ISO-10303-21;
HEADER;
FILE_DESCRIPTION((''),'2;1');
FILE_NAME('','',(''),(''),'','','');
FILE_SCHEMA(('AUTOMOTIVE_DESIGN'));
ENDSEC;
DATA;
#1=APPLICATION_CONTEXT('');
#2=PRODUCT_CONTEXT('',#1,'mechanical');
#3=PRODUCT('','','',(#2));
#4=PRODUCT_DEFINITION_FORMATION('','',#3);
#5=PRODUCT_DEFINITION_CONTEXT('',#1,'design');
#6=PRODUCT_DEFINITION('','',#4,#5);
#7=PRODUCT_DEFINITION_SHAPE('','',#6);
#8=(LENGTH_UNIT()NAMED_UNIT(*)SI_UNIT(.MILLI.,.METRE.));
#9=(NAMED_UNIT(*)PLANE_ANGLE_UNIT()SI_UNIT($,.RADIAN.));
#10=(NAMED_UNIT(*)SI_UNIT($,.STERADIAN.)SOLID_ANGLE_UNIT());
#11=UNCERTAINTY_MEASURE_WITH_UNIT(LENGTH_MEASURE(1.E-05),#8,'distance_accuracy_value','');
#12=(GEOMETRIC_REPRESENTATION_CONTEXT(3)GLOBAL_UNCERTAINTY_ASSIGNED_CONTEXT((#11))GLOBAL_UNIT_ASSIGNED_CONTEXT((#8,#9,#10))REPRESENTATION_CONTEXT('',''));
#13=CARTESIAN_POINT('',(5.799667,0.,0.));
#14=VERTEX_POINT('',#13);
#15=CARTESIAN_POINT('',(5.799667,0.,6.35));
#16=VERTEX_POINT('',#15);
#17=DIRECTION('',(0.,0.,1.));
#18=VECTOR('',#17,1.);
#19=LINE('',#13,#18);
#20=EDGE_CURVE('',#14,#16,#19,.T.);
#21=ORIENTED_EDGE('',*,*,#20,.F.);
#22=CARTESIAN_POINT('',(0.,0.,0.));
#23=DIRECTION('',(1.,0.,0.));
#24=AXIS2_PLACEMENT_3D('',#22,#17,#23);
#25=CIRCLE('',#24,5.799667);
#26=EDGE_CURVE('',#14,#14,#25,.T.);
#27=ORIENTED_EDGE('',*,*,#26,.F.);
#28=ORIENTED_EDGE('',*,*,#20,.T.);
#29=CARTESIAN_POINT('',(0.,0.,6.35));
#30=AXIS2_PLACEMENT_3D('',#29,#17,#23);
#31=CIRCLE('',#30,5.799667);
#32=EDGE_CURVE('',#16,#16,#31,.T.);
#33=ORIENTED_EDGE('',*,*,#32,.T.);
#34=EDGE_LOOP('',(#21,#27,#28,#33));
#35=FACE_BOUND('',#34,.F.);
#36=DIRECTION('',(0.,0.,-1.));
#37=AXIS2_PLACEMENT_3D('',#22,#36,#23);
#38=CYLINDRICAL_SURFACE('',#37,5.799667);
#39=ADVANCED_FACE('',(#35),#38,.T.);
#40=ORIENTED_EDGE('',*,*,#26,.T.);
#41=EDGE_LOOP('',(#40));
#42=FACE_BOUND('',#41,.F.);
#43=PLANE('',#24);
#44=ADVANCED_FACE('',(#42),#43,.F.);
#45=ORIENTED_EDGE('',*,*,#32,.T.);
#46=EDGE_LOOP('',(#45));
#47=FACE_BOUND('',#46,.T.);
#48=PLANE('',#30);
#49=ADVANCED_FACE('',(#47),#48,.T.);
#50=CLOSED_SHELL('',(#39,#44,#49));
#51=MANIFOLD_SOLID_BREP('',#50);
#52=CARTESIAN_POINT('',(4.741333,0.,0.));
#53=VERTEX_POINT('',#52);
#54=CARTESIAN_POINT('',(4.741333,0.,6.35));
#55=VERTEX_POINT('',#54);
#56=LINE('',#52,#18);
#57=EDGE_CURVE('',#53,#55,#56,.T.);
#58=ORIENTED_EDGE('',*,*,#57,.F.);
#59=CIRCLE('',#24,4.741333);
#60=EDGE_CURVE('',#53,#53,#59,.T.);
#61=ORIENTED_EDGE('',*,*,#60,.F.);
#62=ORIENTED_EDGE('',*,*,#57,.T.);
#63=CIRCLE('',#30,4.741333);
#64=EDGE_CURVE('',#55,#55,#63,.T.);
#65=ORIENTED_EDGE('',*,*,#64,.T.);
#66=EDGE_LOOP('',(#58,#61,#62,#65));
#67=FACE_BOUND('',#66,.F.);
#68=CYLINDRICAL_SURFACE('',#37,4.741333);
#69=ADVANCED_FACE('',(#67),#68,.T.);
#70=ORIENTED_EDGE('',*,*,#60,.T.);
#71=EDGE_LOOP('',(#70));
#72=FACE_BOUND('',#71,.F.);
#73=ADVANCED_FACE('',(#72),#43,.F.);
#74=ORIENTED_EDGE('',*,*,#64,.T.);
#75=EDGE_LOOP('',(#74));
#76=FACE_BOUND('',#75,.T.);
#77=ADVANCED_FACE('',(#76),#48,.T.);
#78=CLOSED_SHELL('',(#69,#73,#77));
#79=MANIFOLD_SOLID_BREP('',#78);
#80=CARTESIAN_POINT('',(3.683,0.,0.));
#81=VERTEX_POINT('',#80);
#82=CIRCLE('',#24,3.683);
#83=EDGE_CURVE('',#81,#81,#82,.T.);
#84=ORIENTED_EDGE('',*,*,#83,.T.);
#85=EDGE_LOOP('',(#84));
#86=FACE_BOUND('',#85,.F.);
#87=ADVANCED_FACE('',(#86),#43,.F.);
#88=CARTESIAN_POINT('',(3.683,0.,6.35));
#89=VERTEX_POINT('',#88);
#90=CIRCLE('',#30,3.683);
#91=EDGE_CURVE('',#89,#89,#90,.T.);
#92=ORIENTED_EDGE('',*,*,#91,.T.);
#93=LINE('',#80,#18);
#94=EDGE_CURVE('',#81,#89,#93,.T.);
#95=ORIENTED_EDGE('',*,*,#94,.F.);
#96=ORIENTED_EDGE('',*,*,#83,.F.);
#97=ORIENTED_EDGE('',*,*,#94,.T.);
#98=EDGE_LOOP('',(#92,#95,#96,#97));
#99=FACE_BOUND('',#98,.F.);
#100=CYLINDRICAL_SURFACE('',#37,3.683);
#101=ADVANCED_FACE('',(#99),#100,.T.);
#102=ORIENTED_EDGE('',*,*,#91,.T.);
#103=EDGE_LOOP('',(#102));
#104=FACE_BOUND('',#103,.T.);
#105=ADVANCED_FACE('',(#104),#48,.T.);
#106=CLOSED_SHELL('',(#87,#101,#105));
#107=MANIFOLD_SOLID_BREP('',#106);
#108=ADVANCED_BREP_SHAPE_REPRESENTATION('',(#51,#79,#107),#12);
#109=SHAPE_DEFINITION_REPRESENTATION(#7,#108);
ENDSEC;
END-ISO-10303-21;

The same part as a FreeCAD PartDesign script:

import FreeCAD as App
import Part
import Sketcher
Q = App.Units.Quantity

doc = App.newDocument("Part")
body = doc.addObject("PartDesign::Body", "Body")

sketch1 = body.newObject("Sketcher::SketchObject", "Sketch")
sketch1.AttachmentSupport = (doc.getObject("XY_Plane"), [""])
sketch1.MapMode = "FlatFace"
sketch1.addGeometry(Part.Circle(App.Vector(0, 0, 0), App.Vector(0, 0, 1), 3.683), False)
sketch1.addConstraint([
    Sketcher.Constraint("Coincident", 0, 3, -1, 1),
    Sketcher.Constraint("Diameter", 0, Q("0.29 in")),
])
pad1 = body.newObject("PartDesign::Pad", "Pad")
pad1.Profile = sketch1
pad1.Length = Q("0.25 in")
body2 = doc.addObject("PartDesign::Body", "Body001")

sketch2 = body2.newObject("Sketcher::SketchObject", "Sketch001")
sketch2.AttachmentSupport = (doc.getObject("XY_Plane001"), [""])
sketch2.MapMode = "FlatFace"
sketch2.addGeometry(Part.Circle(App.Vector(0, 0, 0), App.Vector(0, 0, 1), 4.741333), False)
sketch2.addConstraint([
    Sketcher.Constraint("Coincident", 0, 3, -1, 1),
    Sketcher.Constraint("Diameter", 0, Q("9.482666 mm")),
])
pad2 = body2.newObject("PartDesign::Pad", "Pad001")
pad2.Profile = sketch2
pad2.Length = Q("0.25 in")
body3 = doc.addObject("PartDesign::Body", "Body002")

sketch3 = body3.newObject("Sketcher::SketchObject", "Sketch002")
sketch3.AttachmentSupport = (doc.getObject("XY_Plane002"), [""])
sketch3.MapMode = "FlatFace"
sketch3.addGeometry(Part.Circle(App.Vector(0, 0, 0), App.Vector(0, 0, 1), 5.799667), False)
sketch3.addConstraint([
    Sketcher.Constraint("Coincident", 0, 3, -1, 1),
    Sketcher.Constraint("Diameter", 0, Q("11.599334 mm")),
])
pad3 = body3.newObject("PartDesign::Pad", "Pad002")
pad3.Profile = sketch3
pad3.Length = Q("0.25 in")

doc.recompute()
